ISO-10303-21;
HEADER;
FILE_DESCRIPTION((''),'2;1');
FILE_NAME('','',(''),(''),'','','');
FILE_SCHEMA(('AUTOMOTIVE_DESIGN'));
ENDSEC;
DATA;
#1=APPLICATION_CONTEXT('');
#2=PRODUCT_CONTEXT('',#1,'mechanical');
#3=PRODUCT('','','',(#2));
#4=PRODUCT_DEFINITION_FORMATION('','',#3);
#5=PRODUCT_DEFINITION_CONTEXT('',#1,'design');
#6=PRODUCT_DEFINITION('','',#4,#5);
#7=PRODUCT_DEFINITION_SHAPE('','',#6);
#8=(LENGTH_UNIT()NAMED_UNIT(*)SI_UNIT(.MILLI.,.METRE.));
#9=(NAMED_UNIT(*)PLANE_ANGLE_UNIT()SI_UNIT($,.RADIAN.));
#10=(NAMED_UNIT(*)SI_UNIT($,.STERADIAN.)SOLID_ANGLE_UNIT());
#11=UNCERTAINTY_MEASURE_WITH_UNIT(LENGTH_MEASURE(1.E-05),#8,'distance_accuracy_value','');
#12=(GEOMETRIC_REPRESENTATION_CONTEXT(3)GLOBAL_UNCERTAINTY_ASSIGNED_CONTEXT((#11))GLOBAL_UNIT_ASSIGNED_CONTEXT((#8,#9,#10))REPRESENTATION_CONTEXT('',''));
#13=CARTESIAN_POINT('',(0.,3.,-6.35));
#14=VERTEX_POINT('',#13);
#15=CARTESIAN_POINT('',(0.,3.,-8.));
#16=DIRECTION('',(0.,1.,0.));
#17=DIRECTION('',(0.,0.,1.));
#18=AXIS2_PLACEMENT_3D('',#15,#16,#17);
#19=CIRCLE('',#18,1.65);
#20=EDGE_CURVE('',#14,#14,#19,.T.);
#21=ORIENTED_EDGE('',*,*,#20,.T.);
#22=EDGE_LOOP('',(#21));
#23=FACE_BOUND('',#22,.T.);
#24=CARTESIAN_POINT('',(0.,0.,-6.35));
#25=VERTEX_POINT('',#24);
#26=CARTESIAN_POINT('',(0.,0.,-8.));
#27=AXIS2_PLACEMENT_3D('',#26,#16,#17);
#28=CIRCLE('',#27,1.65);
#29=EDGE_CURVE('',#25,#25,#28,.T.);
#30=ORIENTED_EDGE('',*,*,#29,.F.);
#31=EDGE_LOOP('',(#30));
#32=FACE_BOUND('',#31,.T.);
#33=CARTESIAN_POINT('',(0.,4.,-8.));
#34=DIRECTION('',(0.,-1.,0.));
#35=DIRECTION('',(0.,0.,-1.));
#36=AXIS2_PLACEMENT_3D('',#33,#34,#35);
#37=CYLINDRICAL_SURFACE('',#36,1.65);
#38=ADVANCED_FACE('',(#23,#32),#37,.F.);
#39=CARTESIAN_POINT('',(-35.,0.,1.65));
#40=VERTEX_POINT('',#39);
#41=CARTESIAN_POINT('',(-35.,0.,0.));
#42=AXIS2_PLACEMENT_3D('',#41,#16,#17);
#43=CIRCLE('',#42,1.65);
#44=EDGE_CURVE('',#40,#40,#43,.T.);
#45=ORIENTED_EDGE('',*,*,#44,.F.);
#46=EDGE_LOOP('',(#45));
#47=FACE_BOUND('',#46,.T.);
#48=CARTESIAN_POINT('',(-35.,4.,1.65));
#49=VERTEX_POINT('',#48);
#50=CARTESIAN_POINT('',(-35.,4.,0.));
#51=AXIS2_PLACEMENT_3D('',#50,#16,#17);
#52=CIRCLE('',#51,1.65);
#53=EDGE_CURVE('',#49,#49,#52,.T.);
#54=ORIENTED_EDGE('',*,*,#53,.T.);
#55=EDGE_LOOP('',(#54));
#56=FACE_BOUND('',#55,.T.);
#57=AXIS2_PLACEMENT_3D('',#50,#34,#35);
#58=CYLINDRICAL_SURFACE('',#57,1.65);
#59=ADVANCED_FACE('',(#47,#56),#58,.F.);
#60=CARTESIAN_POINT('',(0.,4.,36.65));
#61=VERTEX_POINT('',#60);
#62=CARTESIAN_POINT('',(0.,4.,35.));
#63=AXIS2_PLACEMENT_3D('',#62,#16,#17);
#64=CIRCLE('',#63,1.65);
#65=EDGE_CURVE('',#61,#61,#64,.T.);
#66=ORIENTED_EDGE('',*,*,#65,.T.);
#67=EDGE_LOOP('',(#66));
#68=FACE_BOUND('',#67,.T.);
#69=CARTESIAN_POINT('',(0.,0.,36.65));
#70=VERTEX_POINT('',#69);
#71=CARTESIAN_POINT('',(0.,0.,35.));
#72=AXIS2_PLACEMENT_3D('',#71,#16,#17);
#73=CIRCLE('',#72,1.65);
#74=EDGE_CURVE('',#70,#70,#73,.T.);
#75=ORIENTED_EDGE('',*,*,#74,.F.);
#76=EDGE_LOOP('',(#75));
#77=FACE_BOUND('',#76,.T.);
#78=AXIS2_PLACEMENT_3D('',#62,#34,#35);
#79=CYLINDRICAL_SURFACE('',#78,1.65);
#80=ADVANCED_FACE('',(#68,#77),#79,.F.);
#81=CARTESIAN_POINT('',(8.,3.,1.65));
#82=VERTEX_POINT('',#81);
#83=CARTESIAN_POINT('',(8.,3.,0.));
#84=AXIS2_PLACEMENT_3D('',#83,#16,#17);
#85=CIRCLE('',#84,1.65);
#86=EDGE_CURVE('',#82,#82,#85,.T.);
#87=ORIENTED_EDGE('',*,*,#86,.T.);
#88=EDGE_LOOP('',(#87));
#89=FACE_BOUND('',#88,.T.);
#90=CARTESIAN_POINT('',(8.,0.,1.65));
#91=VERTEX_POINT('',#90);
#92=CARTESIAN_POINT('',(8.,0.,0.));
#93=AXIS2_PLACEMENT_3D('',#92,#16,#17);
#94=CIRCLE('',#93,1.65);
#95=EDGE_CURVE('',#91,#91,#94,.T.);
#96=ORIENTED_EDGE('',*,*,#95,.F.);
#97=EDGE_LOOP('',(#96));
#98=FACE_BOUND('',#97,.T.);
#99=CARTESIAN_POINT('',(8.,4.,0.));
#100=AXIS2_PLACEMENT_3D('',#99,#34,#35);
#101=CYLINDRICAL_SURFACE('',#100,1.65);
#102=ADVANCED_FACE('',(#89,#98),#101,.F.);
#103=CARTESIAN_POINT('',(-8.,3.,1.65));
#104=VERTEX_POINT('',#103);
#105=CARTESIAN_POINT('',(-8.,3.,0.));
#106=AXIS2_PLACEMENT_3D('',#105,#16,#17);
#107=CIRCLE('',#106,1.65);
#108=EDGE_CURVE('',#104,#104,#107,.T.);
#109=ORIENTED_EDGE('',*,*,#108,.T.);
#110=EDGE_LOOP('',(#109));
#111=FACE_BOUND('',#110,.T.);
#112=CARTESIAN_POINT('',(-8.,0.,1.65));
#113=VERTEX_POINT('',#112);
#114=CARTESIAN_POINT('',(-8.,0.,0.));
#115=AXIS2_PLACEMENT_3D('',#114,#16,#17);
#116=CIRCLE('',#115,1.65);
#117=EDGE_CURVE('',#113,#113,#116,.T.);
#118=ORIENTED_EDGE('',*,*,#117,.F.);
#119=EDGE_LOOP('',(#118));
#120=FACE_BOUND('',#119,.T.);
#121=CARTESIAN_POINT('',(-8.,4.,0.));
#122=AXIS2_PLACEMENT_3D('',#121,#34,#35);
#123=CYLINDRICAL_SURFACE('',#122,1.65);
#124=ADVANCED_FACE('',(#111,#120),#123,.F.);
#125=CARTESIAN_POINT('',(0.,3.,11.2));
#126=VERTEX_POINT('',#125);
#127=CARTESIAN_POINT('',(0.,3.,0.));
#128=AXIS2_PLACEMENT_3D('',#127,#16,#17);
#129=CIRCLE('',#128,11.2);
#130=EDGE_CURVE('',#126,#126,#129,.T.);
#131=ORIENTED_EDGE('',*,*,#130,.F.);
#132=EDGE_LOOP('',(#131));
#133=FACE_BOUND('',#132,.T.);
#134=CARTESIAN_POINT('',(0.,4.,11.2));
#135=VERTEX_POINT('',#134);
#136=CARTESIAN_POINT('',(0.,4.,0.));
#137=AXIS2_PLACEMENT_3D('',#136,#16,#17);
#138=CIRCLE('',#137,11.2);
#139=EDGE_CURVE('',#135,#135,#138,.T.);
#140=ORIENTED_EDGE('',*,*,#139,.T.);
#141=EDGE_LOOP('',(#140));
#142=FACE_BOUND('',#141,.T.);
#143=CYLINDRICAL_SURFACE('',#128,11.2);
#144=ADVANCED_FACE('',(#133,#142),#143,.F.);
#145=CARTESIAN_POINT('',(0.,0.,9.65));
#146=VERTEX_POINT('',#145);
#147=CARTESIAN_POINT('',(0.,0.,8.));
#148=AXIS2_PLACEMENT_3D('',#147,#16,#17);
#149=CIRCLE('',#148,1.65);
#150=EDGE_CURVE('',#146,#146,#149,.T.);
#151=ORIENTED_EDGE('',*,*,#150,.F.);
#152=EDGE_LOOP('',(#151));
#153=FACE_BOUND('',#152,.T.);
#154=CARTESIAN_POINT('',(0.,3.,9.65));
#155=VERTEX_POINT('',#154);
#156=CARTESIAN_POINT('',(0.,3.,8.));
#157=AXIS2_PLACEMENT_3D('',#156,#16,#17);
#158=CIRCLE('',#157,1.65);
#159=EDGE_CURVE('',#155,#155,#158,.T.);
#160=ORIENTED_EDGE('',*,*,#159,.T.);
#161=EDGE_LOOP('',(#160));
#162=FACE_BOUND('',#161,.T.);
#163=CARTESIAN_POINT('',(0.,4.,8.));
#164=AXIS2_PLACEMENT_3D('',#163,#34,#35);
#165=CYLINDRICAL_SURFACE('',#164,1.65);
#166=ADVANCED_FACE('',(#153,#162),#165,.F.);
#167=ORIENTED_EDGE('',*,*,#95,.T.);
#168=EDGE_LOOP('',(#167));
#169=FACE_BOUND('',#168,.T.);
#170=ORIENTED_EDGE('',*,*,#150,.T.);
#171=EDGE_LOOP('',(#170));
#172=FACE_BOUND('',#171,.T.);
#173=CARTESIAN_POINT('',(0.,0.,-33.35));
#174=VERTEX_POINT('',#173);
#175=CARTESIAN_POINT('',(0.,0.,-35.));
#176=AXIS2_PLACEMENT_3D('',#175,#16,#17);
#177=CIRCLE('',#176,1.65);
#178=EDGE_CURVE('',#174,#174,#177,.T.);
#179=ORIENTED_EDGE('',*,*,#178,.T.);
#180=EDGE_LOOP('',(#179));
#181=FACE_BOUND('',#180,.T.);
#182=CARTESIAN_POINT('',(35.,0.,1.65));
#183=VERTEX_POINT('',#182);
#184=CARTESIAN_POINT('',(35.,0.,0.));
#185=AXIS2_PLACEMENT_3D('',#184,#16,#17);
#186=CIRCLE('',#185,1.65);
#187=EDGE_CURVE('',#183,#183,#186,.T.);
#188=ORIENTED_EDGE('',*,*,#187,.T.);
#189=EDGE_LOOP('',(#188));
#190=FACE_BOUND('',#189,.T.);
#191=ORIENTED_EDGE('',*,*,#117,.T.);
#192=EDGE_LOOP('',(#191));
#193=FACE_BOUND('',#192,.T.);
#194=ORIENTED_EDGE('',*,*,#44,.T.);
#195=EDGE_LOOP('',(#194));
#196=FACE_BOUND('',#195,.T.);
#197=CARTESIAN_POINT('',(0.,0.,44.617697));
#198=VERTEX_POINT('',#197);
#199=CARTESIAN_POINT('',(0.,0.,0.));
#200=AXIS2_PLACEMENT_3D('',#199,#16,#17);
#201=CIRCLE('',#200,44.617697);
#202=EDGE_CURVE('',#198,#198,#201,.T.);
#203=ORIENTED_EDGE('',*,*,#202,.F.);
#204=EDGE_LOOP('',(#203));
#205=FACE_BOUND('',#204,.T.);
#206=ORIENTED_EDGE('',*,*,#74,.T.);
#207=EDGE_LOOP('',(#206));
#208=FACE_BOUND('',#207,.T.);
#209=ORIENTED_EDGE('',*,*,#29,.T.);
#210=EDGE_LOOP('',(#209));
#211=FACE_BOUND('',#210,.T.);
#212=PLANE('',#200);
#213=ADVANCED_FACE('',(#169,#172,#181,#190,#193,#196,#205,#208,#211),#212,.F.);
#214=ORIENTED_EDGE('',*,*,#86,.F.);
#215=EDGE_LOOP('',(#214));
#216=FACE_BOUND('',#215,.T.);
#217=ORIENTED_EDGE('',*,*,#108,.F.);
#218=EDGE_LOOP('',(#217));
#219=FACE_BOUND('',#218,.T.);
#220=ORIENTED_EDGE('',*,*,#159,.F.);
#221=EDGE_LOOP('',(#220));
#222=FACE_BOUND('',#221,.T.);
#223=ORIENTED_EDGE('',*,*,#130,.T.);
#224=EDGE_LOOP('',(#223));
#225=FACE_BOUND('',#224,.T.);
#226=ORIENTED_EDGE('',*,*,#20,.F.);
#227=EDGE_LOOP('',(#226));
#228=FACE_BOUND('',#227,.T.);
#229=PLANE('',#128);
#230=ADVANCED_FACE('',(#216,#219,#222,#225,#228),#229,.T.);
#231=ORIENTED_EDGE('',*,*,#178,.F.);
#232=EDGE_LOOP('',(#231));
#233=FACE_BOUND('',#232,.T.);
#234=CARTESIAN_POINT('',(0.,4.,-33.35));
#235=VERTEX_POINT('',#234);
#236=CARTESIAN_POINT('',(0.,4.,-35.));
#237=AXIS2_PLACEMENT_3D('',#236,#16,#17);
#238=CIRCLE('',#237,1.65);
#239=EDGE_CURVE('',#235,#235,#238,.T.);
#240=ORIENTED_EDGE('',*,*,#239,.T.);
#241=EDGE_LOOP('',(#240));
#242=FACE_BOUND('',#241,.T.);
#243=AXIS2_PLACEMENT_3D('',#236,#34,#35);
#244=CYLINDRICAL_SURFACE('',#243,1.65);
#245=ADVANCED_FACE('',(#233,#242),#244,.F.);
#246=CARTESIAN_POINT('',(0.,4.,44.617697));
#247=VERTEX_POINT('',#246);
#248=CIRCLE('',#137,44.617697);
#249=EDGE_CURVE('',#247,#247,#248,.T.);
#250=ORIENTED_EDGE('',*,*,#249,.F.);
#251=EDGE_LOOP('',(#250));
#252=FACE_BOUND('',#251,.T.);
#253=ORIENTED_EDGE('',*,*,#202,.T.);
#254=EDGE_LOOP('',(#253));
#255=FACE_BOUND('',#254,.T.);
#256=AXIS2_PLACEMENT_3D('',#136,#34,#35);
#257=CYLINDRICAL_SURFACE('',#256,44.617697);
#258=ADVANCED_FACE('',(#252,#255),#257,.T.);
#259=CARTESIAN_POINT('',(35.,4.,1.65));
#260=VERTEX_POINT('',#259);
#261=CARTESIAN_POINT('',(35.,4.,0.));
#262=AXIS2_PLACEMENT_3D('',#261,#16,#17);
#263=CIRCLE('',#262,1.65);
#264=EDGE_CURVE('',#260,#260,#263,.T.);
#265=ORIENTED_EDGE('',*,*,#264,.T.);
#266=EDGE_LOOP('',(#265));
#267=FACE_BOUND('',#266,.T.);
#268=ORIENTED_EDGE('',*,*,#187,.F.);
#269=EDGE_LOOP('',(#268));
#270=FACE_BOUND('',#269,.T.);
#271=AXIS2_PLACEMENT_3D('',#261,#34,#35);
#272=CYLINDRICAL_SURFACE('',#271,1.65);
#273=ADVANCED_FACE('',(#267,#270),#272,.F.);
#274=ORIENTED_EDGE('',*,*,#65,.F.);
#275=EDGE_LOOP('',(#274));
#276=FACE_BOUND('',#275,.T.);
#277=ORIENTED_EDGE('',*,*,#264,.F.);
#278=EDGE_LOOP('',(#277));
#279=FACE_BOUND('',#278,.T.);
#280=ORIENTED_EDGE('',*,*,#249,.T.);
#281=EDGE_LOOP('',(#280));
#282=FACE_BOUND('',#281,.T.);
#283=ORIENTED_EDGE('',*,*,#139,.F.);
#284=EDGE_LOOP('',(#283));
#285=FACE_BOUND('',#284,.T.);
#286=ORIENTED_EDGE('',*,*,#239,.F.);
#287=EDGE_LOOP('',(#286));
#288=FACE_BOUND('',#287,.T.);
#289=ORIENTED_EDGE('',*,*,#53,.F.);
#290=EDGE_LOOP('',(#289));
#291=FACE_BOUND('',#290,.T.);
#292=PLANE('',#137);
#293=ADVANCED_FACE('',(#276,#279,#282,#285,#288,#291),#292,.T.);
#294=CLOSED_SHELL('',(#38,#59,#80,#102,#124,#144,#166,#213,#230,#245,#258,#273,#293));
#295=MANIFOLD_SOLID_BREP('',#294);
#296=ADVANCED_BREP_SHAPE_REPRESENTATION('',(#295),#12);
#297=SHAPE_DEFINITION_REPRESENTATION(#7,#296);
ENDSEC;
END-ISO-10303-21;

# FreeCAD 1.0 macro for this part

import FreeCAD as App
import Part
import Sketcher
from FreeCAD import Vector

doc = App.newDocument("Part")
body = doc.addObject("PartDesign::Body", "Body")

sketch1 = body.newObject("Sketcher::SketchObject", "Sketch")
sketch1.AttachmentSupport = (doc.getObject("XZ_Plane"), [""])
sketch1.MapMode = "FlatFace"
sketch1.addGeometry([
    Part.Circle(Vector(0, 0, 0), Vector(0, 0, 1), 44.6),
    Part.Circle(Vector(0, -35, 0), Vector(0, 0, 1), 1.6),
    Part.Circle(Vector(0, -8, 0), Vector(0, 0, 1), 1.6),
    Part.Circle(Vector(-35, 0, 0), Vector(0, 0, 1), 1.6),
    Part.Circle(Vector(-8, 0, 0), Vector(0, 0, 1), 1.6),
    Part.Circle(Vector(35, 0, 0), Vector(0, 0, 1), 1.6),
    Part.Circle(Vector(0, 8, 0), Vector(0, 0, 1), 1.6),
    Part.Circle(Vector(8, 0, 0), Vector(0, 0, 1), 1.6),
    Part.Circle(Vector(0, 35, 0), Vector(0, 0, 1), 1.6),
], False)
sketch1.addConstraint([
    Sketcher.Constraint("Coincident", 0, 3, -1, 1),
    Sketcher.Constraint("Equal", 1, 2),
    Sketcher.Constraint("Equal", 2, 3),
    Sketcher.Constraint("Equal", 3, 4),
    Sketcher.Constraint("Equal", 4, 5),
    Sketcher.Constraint("Equal", 5, 6),
    Sketcher.Constraint("Equal", 6, 7),
    Sketcher.Constraint("Equal", 7, 8),
    Sketcher.Constraint("Symmetric", 3, 3, 5, 3, -1, 1),
    Sketcher.Constraint("Symmetric", 2, 3, 6, 3, -1, 1),
    Sketcher.Constraint("Symmetric", 4, 3, 7, 3, -1, 1),
    Sketcher.Constraint("Symmetric", 1, 3, 8, 3, -1, 1),
    Sketcher.Constraint("PointOnObject", 1, 3, -2),
    Sketcher.Constraint("PointOnObject", 2, 3, -2),
    Sketcher.Constraint("PointOnObject", 3, 3, -1),
    Sketcher.Constraint("PointOnObject", 4, 3, -1),
    Sketcher.Constraint("Diameter", 1, 3.3),
    Sketcher.Constraint("DistanceY", 1, 3, -1, 1, 35.0),
    Sketcher.Constraint("DistanceY", 2, 3, -1, 1, 8.0),
    Sketcher.Constraint("DistanceX", 3, 3, -1, 1, 35.0),
    Sketcher.Constraint("DistanceX", 4, 3, -1, 1, 8.0),
    Sketcher.Constraint("Diameter", 0, 89.235395),
])
pad1 = body.newObject("PartDesign::Pad", "Pad")
pad1.Profile = sketch1
pad1.Length = 4
pad1.Reversed = True

sketch2 = body.newObject("Sketcher::SketchObject", "Sketch001")
sketch2.AttachmentSupport = (doc.getObject("XZ_Plane"), [""])
sketch2.MapMode = "FlatFace"
sketch2.AttachmentOffset = App.Placement(Vector(0, 0, -4), App.Rotation())
sketch2.addGeometry(Part.Circle(Vector(0, 0, 0), Vector(0, 0, 1), 11), False)
sketch2.addConstraint([
    Sketcher.Constraint("Coincident", 0, 3, -1, 1),
    Sketcher.Constraint("Diameter", 0, 22.4),
])
pocket1 = body.newObject("PartDesign::Pocket", "Pocket")
pocket1.Profile = sketch2
pocket1.Length = 1
pocket1.Reversed = True

doc.recompute()
